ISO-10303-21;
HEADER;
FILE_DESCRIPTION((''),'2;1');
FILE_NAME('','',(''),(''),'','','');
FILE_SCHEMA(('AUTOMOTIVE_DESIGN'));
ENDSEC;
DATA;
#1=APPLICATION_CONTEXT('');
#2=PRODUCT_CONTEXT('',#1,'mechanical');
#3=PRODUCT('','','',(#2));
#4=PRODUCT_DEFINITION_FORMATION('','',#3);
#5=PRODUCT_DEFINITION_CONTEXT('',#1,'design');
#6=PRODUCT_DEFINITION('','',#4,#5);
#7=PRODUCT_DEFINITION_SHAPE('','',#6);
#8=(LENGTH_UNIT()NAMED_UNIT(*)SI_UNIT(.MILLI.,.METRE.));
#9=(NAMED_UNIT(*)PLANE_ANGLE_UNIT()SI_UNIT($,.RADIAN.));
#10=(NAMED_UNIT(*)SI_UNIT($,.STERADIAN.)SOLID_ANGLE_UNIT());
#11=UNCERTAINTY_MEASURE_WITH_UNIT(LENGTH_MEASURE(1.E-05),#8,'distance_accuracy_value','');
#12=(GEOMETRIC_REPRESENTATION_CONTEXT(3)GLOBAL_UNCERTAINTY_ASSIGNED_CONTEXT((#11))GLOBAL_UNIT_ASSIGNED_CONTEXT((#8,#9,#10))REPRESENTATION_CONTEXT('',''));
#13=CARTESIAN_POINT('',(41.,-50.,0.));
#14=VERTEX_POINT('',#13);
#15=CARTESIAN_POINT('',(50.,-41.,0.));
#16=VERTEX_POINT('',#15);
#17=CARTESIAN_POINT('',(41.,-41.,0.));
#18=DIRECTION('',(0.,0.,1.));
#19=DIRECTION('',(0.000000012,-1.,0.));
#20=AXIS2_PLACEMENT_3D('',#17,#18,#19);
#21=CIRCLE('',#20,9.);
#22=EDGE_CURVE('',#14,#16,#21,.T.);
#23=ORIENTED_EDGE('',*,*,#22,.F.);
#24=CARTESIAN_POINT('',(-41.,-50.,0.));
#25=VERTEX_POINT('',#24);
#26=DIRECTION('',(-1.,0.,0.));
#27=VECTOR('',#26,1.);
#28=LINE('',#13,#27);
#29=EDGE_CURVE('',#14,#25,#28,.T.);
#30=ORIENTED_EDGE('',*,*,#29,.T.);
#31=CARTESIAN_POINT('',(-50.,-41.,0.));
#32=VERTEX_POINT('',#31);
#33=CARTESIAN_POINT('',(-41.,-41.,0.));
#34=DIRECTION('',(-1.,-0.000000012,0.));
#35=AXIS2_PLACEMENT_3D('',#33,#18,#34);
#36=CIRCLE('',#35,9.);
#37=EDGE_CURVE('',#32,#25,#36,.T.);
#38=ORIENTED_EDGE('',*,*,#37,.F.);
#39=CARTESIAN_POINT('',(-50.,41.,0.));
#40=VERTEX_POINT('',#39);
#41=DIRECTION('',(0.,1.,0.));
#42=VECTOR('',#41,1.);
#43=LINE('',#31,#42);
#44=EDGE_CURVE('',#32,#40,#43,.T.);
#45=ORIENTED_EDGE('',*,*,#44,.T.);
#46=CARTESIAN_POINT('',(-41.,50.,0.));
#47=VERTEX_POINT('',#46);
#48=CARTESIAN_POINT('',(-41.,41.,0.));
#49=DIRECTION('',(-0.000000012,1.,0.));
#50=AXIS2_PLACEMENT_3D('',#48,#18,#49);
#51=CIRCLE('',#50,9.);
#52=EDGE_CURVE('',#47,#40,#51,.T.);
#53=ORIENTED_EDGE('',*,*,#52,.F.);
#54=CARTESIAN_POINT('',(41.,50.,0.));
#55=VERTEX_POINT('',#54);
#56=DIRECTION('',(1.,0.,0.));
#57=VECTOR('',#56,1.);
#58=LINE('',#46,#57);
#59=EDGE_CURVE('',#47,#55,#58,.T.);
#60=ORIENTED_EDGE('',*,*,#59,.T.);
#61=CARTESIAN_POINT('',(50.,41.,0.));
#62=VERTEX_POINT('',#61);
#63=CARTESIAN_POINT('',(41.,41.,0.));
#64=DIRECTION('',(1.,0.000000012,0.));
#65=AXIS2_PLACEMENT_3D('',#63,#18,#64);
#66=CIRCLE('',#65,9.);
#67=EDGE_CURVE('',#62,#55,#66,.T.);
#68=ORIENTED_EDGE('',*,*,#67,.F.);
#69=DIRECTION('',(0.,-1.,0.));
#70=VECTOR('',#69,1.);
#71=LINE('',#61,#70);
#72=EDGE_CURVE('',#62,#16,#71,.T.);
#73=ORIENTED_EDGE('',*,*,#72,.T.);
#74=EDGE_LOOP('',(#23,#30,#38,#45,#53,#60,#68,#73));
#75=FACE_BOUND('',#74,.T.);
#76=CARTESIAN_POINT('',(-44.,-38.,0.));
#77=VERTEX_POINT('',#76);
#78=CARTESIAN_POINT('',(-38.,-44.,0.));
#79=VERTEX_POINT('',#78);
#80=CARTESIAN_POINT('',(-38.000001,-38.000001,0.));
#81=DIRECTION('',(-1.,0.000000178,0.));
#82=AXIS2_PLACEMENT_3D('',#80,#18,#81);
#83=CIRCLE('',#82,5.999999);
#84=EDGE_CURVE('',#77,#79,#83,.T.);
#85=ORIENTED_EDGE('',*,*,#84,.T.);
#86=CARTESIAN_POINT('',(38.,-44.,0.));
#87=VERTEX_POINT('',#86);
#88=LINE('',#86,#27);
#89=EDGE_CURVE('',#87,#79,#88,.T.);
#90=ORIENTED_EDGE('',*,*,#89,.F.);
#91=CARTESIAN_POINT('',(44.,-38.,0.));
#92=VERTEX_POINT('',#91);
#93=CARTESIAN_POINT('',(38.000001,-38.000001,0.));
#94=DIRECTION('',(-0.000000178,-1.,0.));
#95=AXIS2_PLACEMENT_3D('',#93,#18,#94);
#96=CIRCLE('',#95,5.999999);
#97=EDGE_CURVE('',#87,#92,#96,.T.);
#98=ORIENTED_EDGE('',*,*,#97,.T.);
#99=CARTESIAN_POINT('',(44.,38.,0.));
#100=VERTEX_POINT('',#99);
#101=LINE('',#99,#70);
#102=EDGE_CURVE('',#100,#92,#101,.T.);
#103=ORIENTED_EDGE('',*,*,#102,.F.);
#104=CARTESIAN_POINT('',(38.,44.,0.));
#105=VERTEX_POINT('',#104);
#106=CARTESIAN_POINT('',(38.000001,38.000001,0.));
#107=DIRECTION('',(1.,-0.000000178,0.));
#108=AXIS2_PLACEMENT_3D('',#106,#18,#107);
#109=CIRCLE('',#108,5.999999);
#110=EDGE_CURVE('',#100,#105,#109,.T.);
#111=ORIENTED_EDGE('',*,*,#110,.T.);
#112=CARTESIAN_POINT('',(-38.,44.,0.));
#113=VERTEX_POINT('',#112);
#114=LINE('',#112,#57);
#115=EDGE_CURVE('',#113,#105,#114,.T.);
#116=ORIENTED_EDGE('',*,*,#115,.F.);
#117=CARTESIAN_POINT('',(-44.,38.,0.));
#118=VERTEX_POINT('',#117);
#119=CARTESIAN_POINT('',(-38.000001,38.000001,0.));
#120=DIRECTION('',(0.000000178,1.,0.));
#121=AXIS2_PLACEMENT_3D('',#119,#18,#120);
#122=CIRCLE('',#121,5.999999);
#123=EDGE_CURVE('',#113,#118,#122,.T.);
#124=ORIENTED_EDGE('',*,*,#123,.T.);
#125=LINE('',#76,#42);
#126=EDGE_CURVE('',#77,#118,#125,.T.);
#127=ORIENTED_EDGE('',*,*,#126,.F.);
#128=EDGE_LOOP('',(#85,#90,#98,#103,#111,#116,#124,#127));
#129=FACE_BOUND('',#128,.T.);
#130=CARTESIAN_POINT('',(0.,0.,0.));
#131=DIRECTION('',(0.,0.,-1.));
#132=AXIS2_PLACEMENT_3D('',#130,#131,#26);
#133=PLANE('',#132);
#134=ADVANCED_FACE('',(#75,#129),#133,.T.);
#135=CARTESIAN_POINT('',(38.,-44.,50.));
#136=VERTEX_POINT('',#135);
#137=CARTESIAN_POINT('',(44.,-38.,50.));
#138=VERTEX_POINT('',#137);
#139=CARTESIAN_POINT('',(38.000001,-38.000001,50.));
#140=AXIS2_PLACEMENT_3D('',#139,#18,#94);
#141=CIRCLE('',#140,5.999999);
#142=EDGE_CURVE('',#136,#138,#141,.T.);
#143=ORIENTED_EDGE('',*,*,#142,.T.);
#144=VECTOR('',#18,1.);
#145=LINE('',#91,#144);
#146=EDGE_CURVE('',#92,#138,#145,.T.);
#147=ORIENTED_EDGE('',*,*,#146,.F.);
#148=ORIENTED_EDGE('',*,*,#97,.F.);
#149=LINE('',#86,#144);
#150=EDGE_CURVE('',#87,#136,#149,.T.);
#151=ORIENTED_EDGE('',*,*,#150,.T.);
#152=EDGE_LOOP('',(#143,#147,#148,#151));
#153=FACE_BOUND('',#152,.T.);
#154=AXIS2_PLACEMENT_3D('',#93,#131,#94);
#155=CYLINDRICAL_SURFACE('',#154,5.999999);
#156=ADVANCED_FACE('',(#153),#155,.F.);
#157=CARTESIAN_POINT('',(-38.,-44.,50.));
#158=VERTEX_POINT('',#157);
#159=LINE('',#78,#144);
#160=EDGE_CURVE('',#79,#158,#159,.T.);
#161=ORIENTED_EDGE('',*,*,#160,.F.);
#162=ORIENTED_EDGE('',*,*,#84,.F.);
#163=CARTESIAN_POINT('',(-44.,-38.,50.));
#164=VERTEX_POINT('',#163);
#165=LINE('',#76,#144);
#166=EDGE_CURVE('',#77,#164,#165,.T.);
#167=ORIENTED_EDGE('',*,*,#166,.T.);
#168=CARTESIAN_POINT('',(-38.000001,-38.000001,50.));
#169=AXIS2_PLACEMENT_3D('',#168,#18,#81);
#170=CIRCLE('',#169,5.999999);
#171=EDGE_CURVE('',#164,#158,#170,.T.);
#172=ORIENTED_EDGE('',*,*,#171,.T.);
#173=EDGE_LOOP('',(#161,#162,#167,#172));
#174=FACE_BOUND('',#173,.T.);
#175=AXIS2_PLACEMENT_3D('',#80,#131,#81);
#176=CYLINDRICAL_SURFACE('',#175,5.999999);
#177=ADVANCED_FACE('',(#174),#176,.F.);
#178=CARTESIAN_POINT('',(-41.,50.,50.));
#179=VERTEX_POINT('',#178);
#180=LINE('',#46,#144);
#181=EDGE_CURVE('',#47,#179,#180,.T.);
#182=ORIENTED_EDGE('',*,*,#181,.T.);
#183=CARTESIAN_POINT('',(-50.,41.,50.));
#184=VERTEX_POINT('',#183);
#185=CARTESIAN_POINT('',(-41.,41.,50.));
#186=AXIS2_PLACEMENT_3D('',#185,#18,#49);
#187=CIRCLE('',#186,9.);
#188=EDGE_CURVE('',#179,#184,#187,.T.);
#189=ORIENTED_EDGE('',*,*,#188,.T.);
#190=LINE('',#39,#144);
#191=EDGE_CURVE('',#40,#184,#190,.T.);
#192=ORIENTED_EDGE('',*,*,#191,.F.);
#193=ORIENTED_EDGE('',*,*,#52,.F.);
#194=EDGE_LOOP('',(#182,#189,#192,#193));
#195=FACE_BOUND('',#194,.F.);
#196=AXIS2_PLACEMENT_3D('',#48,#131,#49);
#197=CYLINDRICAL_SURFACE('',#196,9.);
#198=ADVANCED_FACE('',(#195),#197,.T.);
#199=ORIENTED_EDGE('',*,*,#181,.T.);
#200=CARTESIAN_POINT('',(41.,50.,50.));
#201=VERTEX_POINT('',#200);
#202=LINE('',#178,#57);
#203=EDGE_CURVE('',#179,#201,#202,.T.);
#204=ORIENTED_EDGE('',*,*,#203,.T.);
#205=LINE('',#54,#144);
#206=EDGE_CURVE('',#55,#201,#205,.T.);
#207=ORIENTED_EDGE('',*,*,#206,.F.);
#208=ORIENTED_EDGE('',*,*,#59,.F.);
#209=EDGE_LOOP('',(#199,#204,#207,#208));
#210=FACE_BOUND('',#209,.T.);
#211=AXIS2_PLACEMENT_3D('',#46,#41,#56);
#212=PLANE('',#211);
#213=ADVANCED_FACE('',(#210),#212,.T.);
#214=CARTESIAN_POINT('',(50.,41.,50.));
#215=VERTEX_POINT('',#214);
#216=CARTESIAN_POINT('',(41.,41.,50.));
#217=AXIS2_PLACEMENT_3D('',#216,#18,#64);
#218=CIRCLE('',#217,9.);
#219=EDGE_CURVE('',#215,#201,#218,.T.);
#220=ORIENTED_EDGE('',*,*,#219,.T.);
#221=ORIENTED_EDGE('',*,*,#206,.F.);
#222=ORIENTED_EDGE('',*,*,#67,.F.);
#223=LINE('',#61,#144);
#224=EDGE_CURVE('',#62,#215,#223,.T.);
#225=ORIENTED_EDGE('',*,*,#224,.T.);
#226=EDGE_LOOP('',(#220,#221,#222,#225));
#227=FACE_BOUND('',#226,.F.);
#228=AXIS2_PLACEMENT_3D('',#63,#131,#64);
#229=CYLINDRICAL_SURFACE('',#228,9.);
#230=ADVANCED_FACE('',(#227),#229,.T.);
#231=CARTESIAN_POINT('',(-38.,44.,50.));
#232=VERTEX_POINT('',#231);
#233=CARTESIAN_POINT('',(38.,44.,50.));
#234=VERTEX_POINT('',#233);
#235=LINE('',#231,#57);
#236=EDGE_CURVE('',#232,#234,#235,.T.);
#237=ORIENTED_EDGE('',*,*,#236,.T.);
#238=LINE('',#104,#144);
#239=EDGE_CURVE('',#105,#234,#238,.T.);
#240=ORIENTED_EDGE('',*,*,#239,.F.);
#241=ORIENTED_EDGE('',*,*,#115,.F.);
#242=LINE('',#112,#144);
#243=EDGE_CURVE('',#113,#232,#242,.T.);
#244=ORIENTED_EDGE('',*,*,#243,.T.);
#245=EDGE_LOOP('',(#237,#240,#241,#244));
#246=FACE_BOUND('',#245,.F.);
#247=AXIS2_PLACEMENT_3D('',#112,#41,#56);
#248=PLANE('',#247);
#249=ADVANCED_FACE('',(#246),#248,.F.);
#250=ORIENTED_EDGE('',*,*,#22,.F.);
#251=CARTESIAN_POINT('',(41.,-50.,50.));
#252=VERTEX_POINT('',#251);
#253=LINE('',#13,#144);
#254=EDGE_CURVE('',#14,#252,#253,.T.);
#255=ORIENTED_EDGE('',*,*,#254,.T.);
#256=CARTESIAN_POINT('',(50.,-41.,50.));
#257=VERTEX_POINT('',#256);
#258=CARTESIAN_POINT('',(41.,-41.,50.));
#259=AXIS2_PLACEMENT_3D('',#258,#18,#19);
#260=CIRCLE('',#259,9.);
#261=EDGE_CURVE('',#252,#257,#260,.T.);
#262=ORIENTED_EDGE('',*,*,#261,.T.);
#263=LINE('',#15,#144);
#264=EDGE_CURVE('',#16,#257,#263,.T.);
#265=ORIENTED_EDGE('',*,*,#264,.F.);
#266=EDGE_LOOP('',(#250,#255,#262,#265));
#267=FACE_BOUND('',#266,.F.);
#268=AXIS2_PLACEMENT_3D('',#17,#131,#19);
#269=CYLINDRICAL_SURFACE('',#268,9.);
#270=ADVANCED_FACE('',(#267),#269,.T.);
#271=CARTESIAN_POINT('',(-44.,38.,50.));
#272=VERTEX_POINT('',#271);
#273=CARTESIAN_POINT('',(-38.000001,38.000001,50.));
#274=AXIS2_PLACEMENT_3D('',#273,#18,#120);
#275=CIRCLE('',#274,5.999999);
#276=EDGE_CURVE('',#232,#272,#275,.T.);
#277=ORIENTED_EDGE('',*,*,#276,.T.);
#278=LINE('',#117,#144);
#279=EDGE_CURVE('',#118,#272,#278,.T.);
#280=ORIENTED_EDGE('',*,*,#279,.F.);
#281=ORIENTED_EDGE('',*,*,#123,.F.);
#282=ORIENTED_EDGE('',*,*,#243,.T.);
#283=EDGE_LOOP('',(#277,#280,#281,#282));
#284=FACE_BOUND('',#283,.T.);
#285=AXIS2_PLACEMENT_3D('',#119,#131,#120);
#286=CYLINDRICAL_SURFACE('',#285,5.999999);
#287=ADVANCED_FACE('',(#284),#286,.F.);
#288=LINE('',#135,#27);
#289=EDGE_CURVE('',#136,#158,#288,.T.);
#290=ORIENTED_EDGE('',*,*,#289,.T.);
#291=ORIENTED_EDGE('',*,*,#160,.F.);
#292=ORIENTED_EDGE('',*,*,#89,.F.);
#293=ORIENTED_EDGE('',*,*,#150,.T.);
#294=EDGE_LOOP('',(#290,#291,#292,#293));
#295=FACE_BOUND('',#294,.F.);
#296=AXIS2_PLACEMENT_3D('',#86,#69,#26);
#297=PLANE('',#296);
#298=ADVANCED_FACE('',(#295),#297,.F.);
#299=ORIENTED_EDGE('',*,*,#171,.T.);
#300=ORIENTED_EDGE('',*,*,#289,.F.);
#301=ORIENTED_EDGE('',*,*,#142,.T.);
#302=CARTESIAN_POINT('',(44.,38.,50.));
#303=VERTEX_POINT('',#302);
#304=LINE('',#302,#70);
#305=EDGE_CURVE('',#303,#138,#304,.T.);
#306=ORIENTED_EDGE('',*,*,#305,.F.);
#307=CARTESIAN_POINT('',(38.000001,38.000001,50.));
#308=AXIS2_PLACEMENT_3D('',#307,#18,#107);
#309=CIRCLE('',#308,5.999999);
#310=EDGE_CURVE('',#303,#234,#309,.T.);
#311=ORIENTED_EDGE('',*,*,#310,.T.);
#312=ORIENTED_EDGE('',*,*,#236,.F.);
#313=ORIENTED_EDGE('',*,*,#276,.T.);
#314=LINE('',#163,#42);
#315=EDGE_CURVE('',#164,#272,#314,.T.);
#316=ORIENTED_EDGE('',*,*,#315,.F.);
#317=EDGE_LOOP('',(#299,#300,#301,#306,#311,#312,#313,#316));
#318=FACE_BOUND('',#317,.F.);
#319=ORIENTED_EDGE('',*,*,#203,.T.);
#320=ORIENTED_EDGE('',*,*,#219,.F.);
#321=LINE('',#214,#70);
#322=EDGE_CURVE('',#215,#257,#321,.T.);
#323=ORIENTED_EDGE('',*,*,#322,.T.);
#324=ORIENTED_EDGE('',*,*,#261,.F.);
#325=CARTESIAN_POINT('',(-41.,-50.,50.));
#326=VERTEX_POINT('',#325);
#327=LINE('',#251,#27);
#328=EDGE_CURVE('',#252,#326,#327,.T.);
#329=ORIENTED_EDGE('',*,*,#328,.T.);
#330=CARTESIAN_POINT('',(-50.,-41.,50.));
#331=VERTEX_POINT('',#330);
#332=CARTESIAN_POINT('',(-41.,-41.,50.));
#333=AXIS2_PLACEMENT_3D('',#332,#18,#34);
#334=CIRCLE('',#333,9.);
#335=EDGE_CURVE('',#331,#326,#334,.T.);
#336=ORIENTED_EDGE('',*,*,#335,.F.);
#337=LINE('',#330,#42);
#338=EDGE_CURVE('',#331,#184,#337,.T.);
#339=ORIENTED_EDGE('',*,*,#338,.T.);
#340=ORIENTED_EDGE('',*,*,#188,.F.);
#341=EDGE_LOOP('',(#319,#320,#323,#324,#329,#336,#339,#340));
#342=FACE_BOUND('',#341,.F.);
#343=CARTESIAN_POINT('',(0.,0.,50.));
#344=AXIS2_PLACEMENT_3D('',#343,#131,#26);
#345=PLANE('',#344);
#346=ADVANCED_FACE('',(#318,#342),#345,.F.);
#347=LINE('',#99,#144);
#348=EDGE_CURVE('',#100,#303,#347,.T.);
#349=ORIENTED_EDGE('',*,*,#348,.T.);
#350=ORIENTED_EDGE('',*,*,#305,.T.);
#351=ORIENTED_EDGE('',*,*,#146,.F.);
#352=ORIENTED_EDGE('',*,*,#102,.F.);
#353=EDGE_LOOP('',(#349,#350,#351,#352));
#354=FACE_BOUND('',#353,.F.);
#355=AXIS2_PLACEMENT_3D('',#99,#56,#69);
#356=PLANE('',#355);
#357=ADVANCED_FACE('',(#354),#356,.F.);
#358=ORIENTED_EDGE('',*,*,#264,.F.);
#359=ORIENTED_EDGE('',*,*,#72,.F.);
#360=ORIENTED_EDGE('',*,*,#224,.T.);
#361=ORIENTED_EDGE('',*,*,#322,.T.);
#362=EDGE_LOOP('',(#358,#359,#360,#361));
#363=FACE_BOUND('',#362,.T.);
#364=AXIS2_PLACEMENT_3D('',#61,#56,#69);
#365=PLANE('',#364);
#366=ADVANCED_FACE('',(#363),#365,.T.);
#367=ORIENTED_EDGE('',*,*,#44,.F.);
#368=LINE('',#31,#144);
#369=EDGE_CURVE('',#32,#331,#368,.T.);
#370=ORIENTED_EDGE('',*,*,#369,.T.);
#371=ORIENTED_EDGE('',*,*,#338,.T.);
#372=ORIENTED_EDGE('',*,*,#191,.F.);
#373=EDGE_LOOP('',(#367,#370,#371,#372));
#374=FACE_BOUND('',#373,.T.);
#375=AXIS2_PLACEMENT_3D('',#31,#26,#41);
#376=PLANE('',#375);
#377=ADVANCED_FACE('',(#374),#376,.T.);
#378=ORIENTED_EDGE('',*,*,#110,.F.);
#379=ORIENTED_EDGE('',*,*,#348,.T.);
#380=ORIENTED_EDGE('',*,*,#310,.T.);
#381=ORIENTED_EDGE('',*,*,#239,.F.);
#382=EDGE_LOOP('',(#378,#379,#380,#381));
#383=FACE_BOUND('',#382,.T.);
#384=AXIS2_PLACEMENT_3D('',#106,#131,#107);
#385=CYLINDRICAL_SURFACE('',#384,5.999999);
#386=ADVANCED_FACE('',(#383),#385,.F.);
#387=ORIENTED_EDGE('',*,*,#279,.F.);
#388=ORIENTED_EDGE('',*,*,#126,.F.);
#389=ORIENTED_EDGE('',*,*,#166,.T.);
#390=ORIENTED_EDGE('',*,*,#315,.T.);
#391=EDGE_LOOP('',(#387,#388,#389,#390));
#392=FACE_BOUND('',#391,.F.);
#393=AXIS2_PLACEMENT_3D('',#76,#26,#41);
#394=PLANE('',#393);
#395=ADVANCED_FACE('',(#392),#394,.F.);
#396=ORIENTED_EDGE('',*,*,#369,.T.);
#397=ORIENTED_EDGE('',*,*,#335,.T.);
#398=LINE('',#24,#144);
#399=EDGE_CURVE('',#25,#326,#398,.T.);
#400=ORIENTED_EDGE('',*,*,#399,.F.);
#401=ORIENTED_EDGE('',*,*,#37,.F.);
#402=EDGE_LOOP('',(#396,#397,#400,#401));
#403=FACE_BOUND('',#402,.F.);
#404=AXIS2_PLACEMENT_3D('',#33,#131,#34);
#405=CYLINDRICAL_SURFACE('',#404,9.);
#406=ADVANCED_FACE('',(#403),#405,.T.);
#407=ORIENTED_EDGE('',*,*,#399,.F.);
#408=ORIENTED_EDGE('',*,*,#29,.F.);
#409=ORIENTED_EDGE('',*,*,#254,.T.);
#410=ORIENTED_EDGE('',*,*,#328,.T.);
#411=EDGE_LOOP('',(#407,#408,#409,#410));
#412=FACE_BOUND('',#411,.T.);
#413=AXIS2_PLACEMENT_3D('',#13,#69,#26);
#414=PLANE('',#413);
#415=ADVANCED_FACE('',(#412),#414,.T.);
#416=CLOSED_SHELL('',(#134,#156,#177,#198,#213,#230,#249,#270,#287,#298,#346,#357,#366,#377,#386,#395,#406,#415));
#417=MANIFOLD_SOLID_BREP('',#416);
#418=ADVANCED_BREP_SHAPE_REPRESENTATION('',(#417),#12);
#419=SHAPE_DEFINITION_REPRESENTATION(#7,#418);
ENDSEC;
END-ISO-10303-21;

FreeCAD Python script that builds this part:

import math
import FreeCAD as App
import Part
import Sketcher

V = App.Vector
Q = App.Units.Quantity

doc = App.newDocument("Part")
body = doc.addObject("PartDesign::Body", "Body")

sketch1 = body.newObject("Sketcher::SketchObject", "Sketch")
sketch1.AttachmentSupport = (doc.getObject("XY_Plane"), [""])
sketch1.MapMode = "FlatFace"
sketch1.addGeometry([
    Part.LineSegment(V(41, 50, 0), V(-41, 50, 0)),
    Part.ArcOfCircle(Part.Circle(V(-41, 41, 0), V(0, 0, 1), 9), math.radians(90), math.radians(180)),
    Part.LineSegment(V(-50, 41, 0), V(-50, -41, 0)),
    Part.ArcOfCircle(Part.Circle(V(-41, -41, 0), V(0, 0, 1), 9), math.radians(-180), math.radians(-90)),
    Part.LineSegment(V(-41, -50, 0), V(41, -50, 0)),
    Part.ArcOfCircle(Part.Circle(V(41, -41, 0), V(0, 0, 1), 9), math.radians(-90), math.radians(0)),
    Part.LineSegment(V(50, -41, 0), V(50, 41, 0)),
    Part.ArcOfCircle(Part.Circle(V(41, 41, 0), V(0, 0, 1), 9), math.radians(0), math.radians(90)),
    Part.LineSegment(V(-38, 44, 0), V(38, 44, 0)),
    Part.ArcOfCircle(Part.Circle(V(38, 38, 0), V(0, 0, 1), 6), math.radians(0), math.radians(90)),
    Part.LineSegment(V(44, 38, 0), V(44, -38, 0)),
    Part.ArcOfCircle(Part.Circle(V(38, -38, 0), V(0, 0, 1), 6), math.radians(-90), math.radians(0)),
    Part.LineSegment(V(38, -44, 0), V(-38, -44, 0)),
    Part.ArcOfCircle(Part.Circle(V(-38, -38, 0), V(0, 0, 1), 6), math.radians(180), math.radians(270)),
    Part.LineSegment(V(-44, -38, 0), V(-44, 38, 0)),
    Part.ArcOfCircle(Part.Circle(V(-38, 38, 0), V(0, 0, 1), 6), math.radians(90), math.radians(180)),
], False)
sketch1.addConstraint([
    Sketcher.Constraint("Tangent", 0, 2, 1, 1),
    Sketcher.Constraint("Tangent", 1, 2, 2, 1),
    Sketcher.Constraint("Tangent", 2, 2, 3, 1),
    Sketcher.Constraint("Tangent", 3, 2, 4, 1),
    Sketcher.Constraint("Tangent", 4, 2, 5, 1),
    Sketcher.Constraint("Tangent", 5, 2, 6, 1),
    Sketcher.Constraint("Tangent", 6, 2, 7, 1),
    Sketcher.Constraint("Tangent", 7, 2, 0, 1),
    Sketcher.Constraint("Tangent", 8, 2, 9, 2),
    Sketcher.Constraint("Tangent", 9, 1, 10, 1),
    Sketcher.Constraint("Tangent", 10, 2, 11, 2),
    Sketcher.Constraint("Tangent", 11, 1, 12, 1),
    Sketcher.Constraint("Tangent", 12, 2, 13, 2),
    Sketcher.Constraint("Tangent", 13, 1, 14, 1),
    Sketcher.Constraint("Tangent", 14, 2, 15, 2),
    Sketcher.Constraint("Tangent", 15, 1, 8, 1),
    Sketcher.Constraint("Horizontal", 0),
    Sketcher.Constraint("Vertical", 2),
    Sketcher.Constraint("Horizontal", 4),
    Sketcher.Constraint("Vertical", 6),
    Sketcher.Constraint("Horizontal", 8),
    Sketcher.Constraint("Vertical", 10),
    Sketcher.Constraint("Horizontal", 12),
    Sketcher.Constraint("Vertical", 14),
    Sketcher.Constraint("Equal", 1, 3),
    Sketcher.Constraint("Equal", 3, 5),
    Sketcher.Constraint("Equal", 5, 7),
    Sketcher.Constraint("Equal", 9, 11),
    Sketcher.Constraint("Equal", 11, 13),
    Sketcher.Constraint("Equal", 13, 15),
    Sketcher.Constraint("Symmetric", 1, 3, 5, 3, -1, 1),
    Sketcher.Constraint("Symmetric", 9, 3, 13, 3, -1, 1),
    Sketcher.Constraint("Equal", 4, 2),
    Sketcher.Constraint("Equal", 12, 10),
    Sketcher.Constraint("Radius", 1, Q("9 mm")),
    Sketcher.Constraint("Radius", 9, Q("5.999999 mm")),
    Sketcher.Constraint("DistanceX", 0, 2, 0, 1, Q("82 mm")),
    Sketcher.Constraint("DistanceX", 8, 1, 8, 2, Q("76 mm")),
])
pad1 = body.newObject("PartDesign::Pad", "Pad")
pad1.Profile = sketch1
pad1.Length = 50

doc.recompute()
